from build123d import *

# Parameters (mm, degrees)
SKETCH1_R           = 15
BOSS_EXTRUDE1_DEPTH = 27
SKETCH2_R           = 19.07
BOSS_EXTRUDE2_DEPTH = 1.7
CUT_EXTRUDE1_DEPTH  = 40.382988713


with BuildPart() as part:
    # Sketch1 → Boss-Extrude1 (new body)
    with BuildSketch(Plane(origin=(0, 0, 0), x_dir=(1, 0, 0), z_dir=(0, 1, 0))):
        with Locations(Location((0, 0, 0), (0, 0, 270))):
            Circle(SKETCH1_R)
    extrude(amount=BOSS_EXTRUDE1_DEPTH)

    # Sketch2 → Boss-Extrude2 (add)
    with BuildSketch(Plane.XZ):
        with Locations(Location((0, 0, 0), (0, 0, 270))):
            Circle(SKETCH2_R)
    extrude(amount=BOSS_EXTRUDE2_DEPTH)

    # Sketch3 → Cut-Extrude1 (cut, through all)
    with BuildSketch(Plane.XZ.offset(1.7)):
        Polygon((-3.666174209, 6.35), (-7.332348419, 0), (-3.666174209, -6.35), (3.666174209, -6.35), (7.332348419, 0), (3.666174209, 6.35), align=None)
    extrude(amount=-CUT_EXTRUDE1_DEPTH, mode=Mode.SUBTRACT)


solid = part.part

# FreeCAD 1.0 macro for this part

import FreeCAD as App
import Part
import Sketcher
Q = App.Units.Quantity

doc = App.newDocument("Part")
body = doc.addObject("PartDesign::Body", "Body")

# Sketch on XZ plane
sketch1 = body.newObject("Sketcher::SketchObject", "Sketch")
sketch1.AttachmentSupport = (doc.getObject("XZ_Plane"), [""])
sketch1.MapMode = "FlatFace"
sketch1.addGeometry(Part.Circle(App.Vector(0, 0, 0), App.Vector(0, 0, 1), 15), False)
sketch1.addConstraint([
    Sketcher.Constraint("Coincident", 0, 3, -1, 1),
    Sketcher.Constraint("Diameter", 0, Q("30 mm")),
])
pad1 = body.newObject("PartDesign::Pad", "Pad")
pad1.Profile = sketch1
pad1.Length = 27
pad1.Reversed = True

# Sketch on XZ plane
sketch2 = body.newObject("Sketcher::SketchObject", "Sketch001")
sketch2.AttachmentSupport = (doc.getObject("XZ_Plane"), [""])
sketch2.MapMode = "FlatFace"
sketch2.addGeometry(Part.Circle(App.Vector(0, 0, 0), App.Vector(0, 0, 1), 19), False)
sketch2.addConstraint([
    Sketcher.Constraint("Coincident", 0, 3, -1, 1),
    Sketcher.Constraint("Diameter", 0, Q("38.14 mm")),
])
pad2 = body.newObject("PartDesign::Pad", "Pad001")
pad2.Profile = sketch2
pad2.Length = 1.7

# Sketch on XZ plane
sketch3 = body.newObject("Sketcher::SketchObject", "Sketch002")
sketch3.AttachmentSupport = (doc.getObject("XZ_Plane"), [""])
sketch3.MapMode = "FlatFace"
sketch3.AttachmentOffset = App.Placement(App.Vector(0, 0, 1.7), App.Rotation())
sketch3.addGeometry([
    Part.LineSegment(App.Vector(-4, 6, 0), App.Vector(-7, 0, 0)),  # 0
    Part.LineSegment(App.Vector(-7, 0, 0), App.Vector(-4, -6, 0)),  # 1
    Part.LineSegment(App.Vector(-4, -6, 0), App.Vector(4, -6, 0)),  # 2
    Part.LineSegment(App.Vector(4, -6, 0), App.Vector(7, 0, 0)),  # 3
    Part.LineSegment(App.Vector(7, 0, 0), App.Vector(4, 6, 0)),  # 4
    Part.LineSegment(App.Vector(4, 6, 0), App.Vector(-4, 6, 0)),  # 5
], False)
sketch3.addConstraint([
    Sketcher.Constraint("Coincident", 0, 2, 1, 1),
    Sketcher.Constraint("Coincident", 1, 2, 2, 1),
    Sketcher.Constraint("Coincident", 2, 2, 3, 1),
    Sketcher.Constraint("Coincident", 3, 2, 4, 1),
    Sketcher.Constraint("Coincident", 4, 2, 5, 1),
    Sketcher.Constraint("Coincident", 5, 2, 0, 1),
    Sketcher.Constraint("Horizontal", 2),
    Sketcher.Constraint("Horizontal", 5),
    Sketcher.Constraint("Symmetric", 0, 2, 3, 2, -1, 1),
    Sketcher.Constraint("Symmetric", 1, 2, 4, 2, -1, 1),
    Sketcher.Constraint("PointOnObject", 0, 2, -1),
    Sketcher.Constraint("Parallel", 0, 3),
    Sketcher.Constraint("Vertical", 2, 2, 4, 2),
    Sketcher.Constraint("Angle", 0, Q("-120 deg")),
    Sketcher.Constraint("DistanceY", 2, 2, 4, 2, Q("12.7 mm")),
    Sketcher.Constraint("DistanceX", 2, 1, 2, 2, Q("7.332348 mm")),
])
pocket1 = body.newObject("PartDesign::Pocket", "Pocket")
pocket1.Profile = sketch3
pocket1.Type = "ThroughAll"

doc.recompute()
